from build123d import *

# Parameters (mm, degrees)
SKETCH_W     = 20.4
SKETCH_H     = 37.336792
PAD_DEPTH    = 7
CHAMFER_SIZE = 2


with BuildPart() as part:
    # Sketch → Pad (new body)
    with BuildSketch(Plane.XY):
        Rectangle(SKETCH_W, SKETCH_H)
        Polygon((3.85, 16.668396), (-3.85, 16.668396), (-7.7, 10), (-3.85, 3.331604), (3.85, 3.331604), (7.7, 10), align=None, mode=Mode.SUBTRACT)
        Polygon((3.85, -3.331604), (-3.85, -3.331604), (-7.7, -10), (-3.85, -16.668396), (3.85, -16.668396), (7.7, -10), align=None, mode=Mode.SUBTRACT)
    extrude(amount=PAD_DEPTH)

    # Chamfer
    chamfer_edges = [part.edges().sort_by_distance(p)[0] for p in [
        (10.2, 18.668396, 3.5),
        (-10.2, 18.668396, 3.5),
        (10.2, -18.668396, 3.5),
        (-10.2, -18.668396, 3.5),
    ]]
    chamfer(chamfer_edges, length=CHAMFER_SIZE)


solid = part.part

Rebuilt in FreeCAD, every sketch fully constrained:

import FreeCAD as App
import Part
import Sketcher
Q = App.Units.Quantity


def edges_at(feature, points):
    """Names of the edges that pass closest to the given points."""
    edges = feature.Shape.Edges
    near = lambda p: min(range(len(edges)), key=lambda i: edges[i].distToShape(Part.Vertex(*p))[0])
    return sorted({f"Edge{near(p) + 1}" for p in points})

doc = App.newDocument("Part")
body = doc.addObject("PartDesign::Body", "Body")

# Sketch on XY plane
sketch1 = body.newObject("Sketcher::SketchObject", "Sketch")
sketch1.AttachmentSupport = (doc.getObject("XY_Plane"), [""])
sketch1.MapMode = "FlatFace"
sketch1.addGeometry(Part.LineSegment(App.Vector(-10, 19, 0), App.Vector(-10, -19, 0)), False)
sketch1.addGeometry(Part.LineSegment(App.Vector(-10, -19, 0), App.Vector(10, -19, 0)), False)
sketch1.addGeometry(Part.LineSegment(App.Vector(10, -19, 0), App.Vector(10, 19, 0)), False)
sketch1.addGeometry(Part.LineSegment(App.Vector(10, 19, 0), App.Vector(-10, 19, 0)), False)
sketch1.addGeometry(Part.LineSegment(App.Vector(-4, -3, 0), App.Vector(4, -3, 0)), False)
sketch1.addGeometry(Part.LineSegment(App.Vector(4, -3, 0), App.Vector(8, -10, 0)), False)
sketch1.addGeometry(Part.LineSegment(App.Vector(8, -10, 0), App.Vector(4, -17, 0)), False)
sketch1.addGeometry(Part.LineSegment(App.Vector(4, -17, 0), App.Vector(-4, -17, 0)), False)
sketch1.addGeometry(Part.LineSegment(App.Vector(-4, -17, 0), App.Vector(-8, -10, 0)), False)
sketch1.addGeometry(Part.LineSegment(App.Vector(-8, -10, 0), App.Vector(-4, -3, 0)), False)
sketch1.addGeometry(Part.LineSegment(App.Vector(-4, 17, 0), App.Vector(4, 17, 0)), False)
sketch1.addGeometry(Part.LineSegment(App.Vector(4, 17, 0), App.Vector(8, 10, 0)), False)
sketch1.addGeometry(Part.LineSegment(App.Vector(8, 10, 0), App.Vector(4, 3, 0)), False)
sketch1.addGeometry(Part.LineSegment(App.Vector(4, 3, 0), App.Vector(-4, 3, 0)), False)
sketch1.addGeometry(Part.LineSegment(App.Vector(-4, 3, 0), App.Vector(-8, 10, 0)), False)
sketch1.addGeometry(Part.LineSegment(App.Vector(-8, 10, 0), App.Vector(-4, 17, 0)), False)
sketch1.addConstraint(Sketcher.Constraint("Coincident", 0, 2, 1, 1))
sketch1.addConstraint(Sketcher.Constraint("Coincident", 1, 2, 2, 1))
sketch1.addConstraint(Sketcher.Constraint("Coincident", 2, 2, 3, 1))
sketch1.addConstraint(Sketcher.Constraint("Coincident", 3, 2, 0, 1))
sketch1.addConstraint(Sketcher.Constraint("Coincident", 4, 2, 5, 1))
sketch1.addConstraint(Sketcher.Constraint("Coincident", 5, 2, 6, 1))
sketch1.addConstraint(Sketcher.Constraint("Coincident", 6, 2, 7, 1))
sketch1.addConstraint(Sketcher.Constraint("Coincident", 7, 2, 8, 1))
sketch1.addConstraint(Sketcher.Constraint("Coincident", 8, 2, 9, 1))
sketch1.addConstraint(Sketcher.Constraint("Coincident", 9, 2, 4, 1))
sketch1.addConstraint(Sketcher.Constraint("Coincident", 10, 2, 11, 1))
sketch1.addConstraint(Sketcher.Constraint("Coincident", 11, 2, 12, 1))
sketch1.addConstraint(Sketcher.Constraint("Coincident", 12, 2, 13, 1))
sketch1.addConstraint(Sketcher.Constraint("Coincident", 13, 2, 14, 1))
sketch1.addConstraint(Sketcher.Constraint("Coincident", 14, 2, 15, 1))
sketch1.addConstraint(Sketcher.Constraint("Coincident", 15, 2, 10, 1))
sketch1.addConstraint(Sketcher.Constraint("Vertical", 0))
sketch1.addConstraint(Sketcher.Constraint("Horizontal", 1))
sketch1.addConstraint(Sketcher.Constraint("Vertical", 2))
sketch1.addConstraint(Sketcher.Constraint("Horizontal", 3))
sketch1.addConstraint(Sketcher.Constraint("Horizontal", 4))
sketch1.addConstraint(Sketcher.Constraint("Horizontal", 7))
sketch1.addConstraint(Sketcher.Constraint("Horizontal", 10))
sketch1.addConstraint(Sketcher.Constraint("Horizontal", 13))
sketch1.addConstraint(Sketcher.Constraint("Symmetric", 0, 2, 2, 2, -1, 1))
sketch1.addConstraint(Sketcher.Constraint("Symmetric", 7, 2, 10, 2, -1, 1))
sketch1.addConstraint(Sketcher.Constraint("Symmetric", 8, 2, 11, 2, -1, 1))
sketch1.addConstraint(Sketcher.Constraint("Symmetric", 9, 2, 12, 2, -1, 1))
sketch1.addConstraint(Sketcher.Constraint("Symmetric", 5, 2, 14, 2, -1, 1))
sketch1.addConstraint(Sketcher.Constraint("Symmetric", 5, 2, 8, 2, -2))
sketch1.addConstraint(Sketcher.Constraint("Parallel", 5, 8))
sketch1.addConstraint(Sketcher.Constraint("Parallel", 6, 9))
sketch1.addConstraint(Sketcher.Constraint("Parallel", 11, 14))
sketch1.addConstraint(Sketcher.Constraint("Parallel", 12, 15))
sketch1.addConstraint(Sketcher.Constraint("Vertical", 4, 2, 6, 2))
sketch1.addConstraint(Sketcher.Constraint("Vertical", 7, 2, 9, 2))
sketch1.addConstraint(Sketcher.Constraint("Angle", 5, Q("-60.000001 deg")))
sketch1.addConstraint(Sketcher.Constraint("DistanceX", 1, 1, 1, 2, 20.4))
sketch1.addConstraint(Sketcher.Constraint("DistanceX", 4, 1, 4, 2, 7.7))
sketch1.addConstraint(Sketcher.Constraint("DistanceY", 5, 2, -1, 1, 10.0))
sketch1.addConstraint(Sketcher.Constraint("DistanceY", 4, 2, 2, 2, 22.0))
sketch1.addConstraint(Sketcher.Constraint("Distance", 5, 7.7))
pad1 = body.newObject("PartDesign::Pad", "Pad")
pad1.Profile = sketch1
pad1.Length = 7
doc.recompute()

chamfer = body.newObject("PartDesign::Chamfer", "Chamfer")
chamfer.Base = (pad1, edges_at(pad1, [
    (10.2, 18.668, 3.5),
    (-10.2, 18.668, 3.5),
    (10.2, -18.668, 3.5),
    (-10.2, -18.668, 3.5),
]))
chamfer.Size = 2

doc.recompute()
